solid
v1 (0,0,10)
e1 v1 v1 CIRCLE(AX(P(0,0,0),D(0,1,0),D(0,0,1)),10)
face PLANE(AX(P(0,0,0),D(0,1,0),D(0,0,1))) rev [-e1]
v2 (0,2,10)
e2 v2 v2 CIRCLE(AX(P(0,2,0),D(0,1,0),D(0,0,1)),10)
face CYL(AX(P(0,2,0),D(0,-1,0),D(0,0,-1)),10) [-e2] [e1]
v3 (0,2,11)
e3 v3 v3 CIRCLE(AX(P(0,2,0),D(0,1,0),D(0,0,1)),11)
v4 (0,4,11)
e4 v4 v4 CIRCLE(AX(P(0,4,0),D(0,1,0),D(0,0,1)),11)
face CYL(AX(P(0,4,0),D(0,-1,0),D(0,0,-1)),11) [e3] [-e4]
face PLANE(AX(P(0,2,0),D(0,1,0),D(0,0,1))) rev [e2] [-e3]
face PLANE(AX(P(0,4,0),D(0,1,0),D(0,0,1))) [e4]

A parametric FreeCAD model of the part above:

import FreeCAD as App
import Part
import Sketcher
from FreeCAD import Vector
Q = App.Units.Quantity

doc = App.newDocument("Part")
params = doc.addObject("Spreadsheet::Sheet", "Params")
for row, (alias, value) in enumerate([
    ("sketch1_diameter", "20 mm"),
    ("pad1_length", "2 mm"),
    ("sketch2_diameter", "22 mm"),
    ("pad2_length", "2 mm"),
], start=1):
    params.set(f"A{row}", alias)
    params.set(f"B{row}", "=" + value)
    params.setAlias(f"B{row}", alias)

body = doc.addObject("PartDesign::Body", "Body")

# Sketch on XZ plane
sketch1 = doc.addObject("Sketcher::SketchObject", "Sketch")
body.addObject(sketch1)
sketch1.AttachmentSupport = (doc.XZ_Plane, [""])
sketch1.MapMode = "FlatFace"
sketch1.addGeometry(Part.Circle(Vector(0, 0, 0), Vector(0, 0, 1), 10), False)
sketch1.addConstraint(Sketcher.Constraint("Coincident", 0, 3, -1, 1))
sketch1.addConstraint(Sketcher.Constraint("Diameter", 0, Q("20 mm")))
sketch1.setExpression("Constraints[1]", "Params.sketch1_diameter")
pad1 = doc.addObject("PartDesign::Pad", "Pad")
body.addObject(pad1)
pad1.Profile = sketch1
pad1.setExpression("Length", "Params.pad1_length")
pad1.Reversed = True

# Sketch on XZ plane
sketch2 = doc.addObject("Sketcher::SketchObject", "Sketch001")
body.addObject(sketch2)
sketch2.AttachmentSupport = (doc.XZ_Plane, [""])
sketch2.MapMode = "FlatFace"
sketch2.AttachmentOffset = App.Placement(Vector(0, 0, -2), App.Rotation())
sketch2.addGeometry(Part.Circle(Vector(0, 0, 0), Vector(0, 0, 1), 11), False)
sketch2.addConstraint(Sketcher.Constraint("Coincident", 0, 3, -1, 1))
sketch2.addConstraint(Sketcher.Constraint("Diameter", 0, Q("22 mm")))
sketch2.setExpression("Constraints[1]", "Params.sketch2_diameter")
pad2 = doc.addObject("PartDesign::Pad", "Pad001")
body.addObject(pad2)
pad2.Profile = sketch2
pad2.setExpression("Length", "Params.pad2_length")
pad2.Reversed = True

doc.recompute()
